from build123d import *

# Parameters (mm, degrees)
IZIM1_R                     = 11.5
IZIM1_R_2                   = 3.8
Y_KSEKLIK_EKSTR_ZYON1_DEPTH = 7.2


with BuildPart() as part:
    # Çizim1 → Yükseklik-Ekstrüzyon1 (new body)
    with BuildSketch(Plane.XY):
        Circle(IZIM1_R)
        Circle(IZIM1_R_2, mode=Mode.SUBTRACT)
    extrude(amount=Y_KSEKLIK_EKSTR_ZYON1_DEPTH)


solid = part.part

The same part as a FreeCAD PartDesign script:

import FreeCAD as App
import Part
import Sketcher

doc = App.newDocument("Part")
body = doc.addObject("PartDesign::Body", "Body")

# Sketch on XY plane
sketch1 = doc.addObject("Sketcher::SketchObject", "Sketch")
body.addObject(sketch1)
sketch1.AttachmentSupport = (doc.XY_Plane, [""])
sketch1.MapMode = "FlatFace"
sketch1.addGeometry(Part.Circle(App.Vector(0, 0, 0), App.Vector(0, 0, 1), 11.5), False)
sketch1.addGeometry(Part.Circle(App.Vector(0, 0, 0), App.Vector(0, 0, 1), 3.8), False)
sketch1.addConstraint(Sketcher.Constraint("Coincident", 0, 3, -1, 1))
sketch1.addConstraint(Sketcher.Constraint("Coincident", 1, 3, -1, 1))
sketch1.addConstraint(Sketcher.Constraint("Diameter", 0, 23.0))
sketch1.addConstraint(Sketcher.Constraint("Diameter", 1, 7.6))
pad1 = doc.addObject("PartDesign::Pad", "Pad")
body.addObject(pad1)
pad1.Profile = sketch1
pad1.Length = 7.2

doc.recompute()
